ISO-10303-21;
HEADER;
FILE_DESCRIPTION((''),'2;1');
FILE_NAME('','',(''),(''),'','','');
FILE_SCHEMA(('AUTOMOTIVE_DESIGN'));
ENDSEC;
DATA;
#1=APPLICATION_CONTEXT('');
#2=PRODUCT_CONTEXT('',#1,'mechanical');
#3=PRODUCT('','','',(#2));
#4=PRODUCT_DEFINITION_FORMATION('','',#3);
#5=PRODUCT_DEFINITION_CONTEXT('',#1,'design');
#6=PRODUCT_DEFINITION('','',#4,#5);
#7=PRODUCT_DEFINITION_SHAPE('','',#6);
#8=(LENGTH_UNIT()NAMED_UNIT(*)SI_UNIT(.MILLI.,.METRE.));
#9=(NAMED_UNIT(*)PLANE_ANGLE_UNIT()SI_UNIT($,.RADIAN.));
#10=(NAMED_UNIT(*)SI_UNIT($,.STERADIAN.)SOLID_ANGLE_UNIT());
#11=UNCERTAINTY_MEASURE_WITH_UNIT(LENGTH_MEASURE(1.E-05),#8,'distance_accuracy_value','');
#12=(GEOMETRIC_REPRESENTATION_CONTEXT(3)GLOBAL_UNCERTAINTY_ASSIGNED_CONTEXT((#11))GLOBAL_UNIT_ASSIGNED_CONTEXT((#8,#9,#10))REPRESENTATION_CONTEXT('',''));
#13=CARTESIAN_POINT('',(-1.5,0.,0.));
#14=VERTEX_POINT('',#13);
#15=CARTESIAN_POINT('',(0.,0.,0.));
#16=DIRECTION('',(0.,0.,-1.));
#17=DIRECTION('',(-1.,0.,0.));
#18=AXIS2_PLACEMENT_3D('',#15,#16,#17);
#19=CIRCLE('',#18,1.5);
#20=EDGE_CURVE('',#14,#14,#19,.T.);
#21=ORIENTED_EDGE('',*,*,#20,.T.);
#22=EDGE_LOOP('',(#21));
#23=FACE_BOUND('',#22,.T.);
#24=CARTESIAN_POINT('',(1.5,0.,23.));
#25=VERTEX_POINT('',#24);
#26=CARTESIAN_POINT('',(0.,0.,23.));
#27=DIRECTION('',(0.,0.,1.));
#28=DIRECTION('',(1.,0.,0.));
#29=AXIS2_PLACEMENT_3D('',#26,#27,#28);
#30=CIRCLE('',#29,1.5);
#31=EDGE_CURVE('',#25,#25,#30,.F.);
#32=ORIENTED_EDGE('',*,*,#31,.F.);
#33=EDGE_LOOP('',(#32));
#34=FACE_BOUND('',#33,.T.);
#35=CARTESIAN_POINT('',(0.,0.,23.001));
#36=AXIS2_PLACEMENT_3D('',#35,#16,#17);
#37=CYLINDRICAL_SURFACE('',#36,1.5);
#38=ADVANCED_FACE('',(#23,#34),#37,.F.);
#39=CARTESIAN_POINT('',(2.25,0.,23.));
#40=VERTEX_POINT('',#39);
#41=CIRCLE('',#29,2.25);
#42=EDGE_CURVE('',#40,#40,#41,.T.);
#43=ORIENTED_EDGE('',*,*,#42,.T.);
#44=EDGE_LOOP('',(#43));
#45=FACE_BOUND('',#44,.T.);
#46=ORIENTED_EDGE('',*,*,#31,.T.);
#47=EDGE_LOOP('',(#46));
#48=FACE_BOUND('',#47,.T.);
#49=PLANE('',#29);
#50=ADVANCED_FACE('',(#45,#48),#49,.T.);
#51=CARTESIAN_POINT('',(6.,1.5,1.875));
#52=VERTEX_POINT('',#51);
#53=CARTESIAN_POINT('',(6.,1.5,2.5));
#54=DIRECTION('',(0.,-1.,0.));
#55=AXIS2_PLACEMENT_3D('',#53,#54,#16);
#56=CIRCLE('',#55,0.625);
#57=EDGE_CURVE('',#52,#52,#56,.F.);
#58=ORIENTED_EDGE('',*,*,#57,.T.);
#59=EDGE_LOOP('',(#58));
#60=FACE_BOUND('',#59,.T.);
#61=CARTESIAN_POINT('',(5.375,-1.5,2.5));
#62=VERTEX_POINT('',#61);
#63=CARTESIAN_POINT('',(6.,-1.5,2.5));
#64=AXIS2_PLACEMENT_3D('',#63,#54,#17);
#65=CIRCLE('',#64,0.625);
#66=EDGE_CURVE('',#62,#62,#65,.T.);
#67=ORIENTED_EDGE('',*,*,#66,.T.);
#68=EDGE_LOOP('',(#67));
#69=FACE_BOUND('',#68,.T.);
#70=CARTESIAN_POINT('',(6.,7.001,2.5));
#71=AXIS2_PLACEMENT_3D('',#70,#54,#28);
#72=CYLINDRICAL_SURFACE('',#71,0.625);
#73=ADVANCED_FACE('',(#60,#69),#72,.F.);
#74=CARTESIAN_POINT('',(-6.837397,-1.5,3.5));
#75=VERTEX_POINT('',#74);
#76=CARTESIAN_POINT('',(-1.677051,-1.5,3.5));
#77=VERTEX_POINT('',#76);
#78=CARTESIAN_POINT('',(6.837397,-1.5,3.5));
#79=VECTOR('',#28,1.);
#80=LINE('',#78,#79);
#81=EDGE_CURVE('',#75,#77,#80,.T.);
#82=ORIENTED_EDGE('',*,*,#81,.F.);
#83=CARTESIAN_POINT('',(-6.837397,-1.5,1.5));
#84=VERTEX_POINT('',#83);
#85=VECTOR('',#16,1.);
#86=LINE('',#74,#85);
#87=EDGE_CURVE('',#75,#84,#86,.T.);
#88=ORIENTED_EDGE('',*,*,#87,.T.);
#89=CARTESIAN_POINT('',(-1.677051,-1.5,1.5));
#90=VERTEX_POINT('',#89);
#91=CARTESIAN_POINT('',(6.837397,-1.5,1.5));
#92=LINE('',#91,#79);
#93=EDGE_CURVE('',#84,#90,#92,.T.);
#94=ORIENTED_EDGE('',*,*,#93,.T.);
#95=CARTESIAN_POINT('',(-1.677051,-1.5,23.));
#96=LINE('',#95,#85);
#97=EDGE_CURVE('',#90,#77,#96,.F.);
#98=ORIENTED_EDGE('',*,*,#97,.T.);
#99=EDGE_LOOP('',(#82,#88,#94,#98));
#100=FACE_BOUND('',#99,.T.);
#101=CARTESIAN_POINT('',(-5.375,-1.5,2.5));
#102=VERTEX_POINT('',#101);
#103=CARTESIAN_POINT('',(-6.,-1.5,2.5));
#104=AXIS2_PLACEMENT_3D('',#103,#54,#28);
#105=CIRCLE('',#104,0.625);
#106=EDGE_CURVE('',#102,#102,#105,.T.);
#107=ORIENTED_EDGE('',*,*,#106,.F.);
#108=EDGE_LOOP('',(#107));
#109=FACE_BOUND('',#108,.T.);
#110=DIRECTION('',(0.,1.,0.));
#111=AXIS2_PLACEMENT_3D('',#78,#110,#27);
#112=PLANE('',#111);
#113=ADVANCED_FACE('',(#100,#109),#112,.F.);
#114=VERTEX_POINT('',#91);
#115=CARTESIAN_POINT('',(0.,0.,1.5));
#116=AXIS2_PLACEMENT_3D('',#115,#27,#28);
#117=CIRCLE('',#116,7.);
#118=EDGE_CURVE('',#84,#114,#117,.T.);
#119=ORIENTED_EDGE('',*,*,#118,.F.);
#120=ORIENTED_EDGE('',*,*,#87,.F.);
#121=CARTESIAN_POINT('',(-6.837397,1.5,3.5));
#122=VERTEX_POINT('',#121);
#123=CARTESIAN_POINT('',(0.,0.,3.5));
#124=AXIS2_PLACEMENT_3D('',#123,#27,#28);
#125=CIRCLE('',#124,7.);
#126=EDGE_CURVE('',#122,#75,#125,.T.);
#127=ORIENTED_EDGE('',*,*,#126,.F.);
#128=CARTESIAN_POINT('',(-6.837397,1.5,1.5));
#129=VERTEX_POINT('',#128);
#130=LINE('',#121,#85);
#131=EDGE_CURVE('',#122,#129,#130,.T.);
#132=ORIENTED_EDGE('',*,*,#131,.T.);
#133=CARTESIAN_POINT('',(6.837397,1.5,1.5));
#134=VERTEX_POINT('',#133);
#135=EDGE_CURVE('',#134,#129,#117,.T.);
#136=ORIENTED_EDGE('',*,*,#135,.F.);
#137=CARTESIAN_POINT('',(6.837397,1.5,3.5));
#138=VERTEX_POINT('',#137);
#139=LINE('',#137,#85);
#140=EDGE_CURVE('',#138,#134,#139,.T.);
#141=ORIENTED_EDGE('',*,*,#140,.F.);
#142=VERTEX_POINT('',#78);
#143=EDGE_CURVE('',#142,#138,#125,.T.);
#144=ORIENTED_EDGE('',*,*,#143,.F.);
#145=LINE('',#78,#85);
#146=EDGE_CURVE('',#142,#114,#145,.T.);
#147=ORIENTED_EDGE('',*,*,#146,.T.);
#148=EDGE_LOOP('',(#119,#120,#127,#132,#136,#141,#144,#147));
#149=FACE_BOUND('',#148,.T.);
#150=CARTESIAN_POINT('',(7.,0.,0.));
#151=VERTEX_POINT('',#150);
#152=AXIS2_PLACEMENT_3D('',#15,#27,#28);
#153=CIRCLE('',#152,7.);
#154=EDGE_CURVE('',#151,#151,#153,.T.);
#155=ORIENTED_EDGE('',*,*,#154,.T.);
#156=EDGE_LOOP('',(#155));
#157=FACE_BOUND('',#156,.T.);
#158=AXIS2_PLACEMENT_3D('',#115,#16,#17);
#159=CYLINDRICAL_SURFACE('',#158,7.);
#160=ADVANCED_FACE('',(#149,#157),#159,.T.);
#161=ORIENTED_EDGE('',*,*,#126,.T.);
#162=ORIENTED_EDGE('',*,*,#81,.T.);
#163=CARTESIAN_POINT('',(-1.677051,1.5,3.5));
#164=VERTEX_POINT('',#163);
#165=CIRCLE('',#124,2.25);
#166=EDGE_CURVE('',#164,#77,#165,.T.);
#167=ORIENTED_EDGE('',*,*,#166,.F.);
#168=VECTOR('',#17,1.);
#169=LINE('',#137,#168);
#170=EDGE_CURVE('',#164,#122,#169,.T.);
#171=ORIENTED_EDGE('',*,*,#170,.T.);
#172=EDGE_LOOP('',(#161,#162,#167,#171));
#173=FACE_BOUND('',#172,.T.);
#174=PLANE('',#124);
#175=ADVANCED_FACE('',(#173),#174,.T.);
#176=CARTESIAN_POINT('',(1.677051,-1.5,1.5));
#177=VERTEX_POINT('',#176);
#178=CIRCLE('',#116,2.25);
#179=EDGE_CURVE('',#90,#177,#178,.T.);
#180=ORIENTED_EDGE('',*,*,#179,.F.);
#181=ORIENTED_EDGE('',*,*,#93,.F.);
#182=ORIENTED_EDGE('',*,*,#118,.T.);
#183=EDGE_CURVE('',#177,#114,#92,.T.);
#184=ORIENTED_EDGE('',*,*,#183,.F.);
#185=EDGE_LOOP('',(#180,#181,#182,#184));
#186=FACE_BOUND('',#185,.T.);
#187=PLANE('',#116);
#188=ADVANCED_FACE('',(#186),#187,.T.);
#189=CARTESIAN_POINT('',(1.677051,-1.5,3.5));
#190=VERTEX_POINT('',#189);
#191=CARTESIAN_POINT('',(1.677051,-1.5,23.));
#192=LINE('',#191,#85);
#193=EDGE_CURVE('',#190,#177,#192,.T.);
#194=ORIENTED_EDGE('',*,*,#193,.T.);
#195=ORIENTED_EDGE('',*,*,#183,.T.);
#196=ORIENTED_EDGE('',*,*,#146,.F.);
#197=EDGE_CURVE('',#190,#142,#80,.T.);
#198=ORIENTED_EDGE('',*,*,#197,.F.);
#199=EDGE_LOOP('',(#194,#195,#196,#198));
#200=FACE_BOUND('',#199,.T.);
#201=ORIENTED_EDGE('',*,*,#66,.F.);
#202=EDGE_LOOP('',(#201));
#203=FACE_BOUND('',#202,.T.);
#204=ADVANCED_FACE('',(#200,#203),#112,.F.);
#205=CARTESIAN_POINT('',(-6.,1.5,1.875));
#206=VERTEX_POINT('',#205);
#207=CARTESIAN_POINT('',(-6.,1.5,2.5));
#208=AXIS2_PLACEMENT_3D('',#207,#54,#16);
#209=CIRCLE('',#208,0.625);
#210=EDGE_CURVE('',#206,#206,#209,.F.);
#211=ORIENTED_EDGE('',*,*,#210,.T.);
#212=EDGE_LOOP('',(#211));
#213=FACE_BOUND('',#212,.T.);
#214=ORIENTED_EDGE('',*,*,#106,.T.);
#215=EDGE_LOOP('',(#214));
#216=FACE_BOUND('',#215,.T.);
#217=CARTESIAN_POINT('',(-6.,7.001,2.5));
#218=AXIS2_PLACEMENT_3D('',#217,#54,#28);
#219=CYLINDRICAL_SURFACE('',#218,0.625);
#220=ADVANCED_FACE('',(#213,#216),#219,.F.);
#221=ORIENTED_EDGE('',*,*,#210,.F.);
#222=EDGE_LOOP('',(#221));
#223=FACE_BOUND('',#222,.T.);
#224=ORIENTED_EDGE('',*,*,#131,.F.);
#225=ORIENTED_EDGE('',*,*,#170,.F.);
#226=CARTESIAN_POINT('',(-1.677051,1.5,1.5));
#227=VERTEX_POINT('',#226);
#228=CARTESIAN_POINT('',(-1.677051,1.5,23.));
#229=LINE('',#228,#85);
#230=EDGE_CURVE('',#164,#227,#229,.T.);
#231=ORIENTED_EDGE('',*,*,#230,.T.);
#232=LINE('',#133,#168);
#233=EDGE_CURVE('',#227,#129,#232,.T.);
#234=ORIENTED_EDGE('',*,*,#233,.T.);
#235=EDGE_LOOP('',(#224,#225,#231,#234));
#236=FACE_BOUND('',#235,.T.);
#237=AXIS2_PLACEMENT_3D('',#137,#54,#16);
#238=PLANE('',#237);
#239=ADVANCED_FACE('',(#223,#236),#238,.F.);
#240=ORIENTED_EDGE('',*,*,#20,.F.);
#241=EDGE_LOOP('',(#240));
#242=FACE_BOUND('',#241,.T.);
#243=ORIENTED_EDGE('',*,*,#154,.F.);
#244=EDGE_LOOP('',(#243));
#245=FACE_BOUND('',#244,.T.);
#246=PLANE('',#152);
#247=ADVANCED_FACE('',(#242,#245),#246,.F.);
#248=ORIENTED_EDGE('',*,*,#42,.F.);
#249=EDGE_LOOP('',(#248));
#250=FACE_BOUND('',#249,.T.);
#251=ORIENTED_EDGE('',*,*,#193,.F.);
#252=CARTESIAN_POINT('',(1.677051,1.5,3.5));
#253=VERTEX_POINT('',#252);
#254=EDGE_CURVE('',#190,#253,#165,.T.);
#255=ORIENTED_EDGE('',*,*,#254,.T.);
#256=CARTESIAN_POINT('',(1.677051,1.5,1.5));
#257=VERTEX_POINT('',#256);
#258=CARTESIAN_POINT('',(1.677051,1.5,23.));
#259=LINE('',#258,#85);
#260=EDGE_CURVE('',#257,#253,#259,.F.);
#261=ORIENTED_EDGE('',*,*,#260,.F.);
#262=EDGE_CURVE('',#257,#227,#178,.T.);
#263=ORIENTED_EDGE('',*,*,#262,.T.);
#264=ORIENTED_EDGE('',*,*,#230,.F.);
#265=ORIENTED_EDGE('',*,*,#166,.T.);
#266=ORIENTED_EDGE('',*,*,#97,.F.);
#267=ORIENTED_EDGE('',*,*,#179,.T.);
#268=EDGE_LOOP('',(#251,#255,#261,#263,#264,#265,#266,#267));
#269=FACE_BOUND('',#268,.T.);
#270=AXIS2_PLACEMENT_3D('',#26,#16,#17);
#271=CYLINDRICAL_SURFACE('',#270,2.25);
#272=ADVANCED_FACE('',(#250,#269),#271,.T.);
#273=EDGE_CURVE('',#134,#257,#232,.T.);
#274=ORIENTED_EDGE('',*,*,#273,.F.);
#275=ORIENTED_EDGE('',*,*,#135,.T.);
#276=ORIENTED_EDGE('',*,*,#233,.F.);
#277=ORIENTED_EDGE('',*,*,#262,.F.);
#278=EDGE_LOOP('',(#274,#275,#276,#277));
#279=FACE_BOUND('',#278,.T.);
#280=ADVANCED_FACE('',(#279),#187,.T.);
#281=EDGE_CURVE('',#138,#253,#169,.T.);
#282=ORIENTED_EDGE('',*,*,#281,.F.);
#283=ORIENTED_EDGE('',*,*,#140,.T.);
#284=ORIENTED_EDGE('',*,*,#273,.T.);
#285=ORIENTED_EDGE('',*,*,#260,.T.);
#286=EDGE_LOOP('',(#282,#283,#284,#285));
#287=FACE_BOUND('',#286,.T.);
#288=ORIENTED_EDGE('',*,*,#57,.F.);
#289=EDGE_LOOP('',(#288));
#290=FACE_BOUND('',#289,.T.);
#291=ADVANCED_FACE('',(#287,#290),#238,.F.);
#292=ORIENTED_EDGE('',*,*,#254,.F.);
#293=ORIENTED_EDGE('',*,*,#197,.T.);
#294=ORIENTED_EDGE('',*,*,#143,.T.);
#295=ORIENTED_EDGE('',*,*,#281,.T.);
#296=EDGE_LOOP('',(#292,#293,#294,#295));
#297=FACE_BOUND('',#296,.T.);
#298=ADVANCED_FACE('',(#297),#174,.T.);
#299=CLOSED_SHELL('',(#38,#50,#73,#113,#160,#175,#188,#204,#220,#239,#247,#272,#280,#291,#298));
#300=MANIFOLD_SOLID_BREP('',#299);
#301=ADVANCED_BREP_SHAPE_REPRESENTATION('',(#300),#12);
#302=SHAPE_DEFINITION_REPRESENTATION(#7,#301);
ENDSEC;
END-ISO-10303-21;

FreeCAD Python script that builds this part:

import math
import FreeCAD as App
import Part
import Sketcher
from FreeCAD import Vector
Q = App.Units.Quantity

doc = App.newDocument("Part")
body = doc.addObject("PartDesign::Body", "Body")

# Sketch on XY plane
sketch1 = doc.addObject("Sketcher::SketchObject", "Sketch")
body.addObject(sketch1)
sketch1.AttachmentSupport = (doc.XY_Plane, [""])
sketch1.MapMode = "FlatFace"
sketch1.addGeometry(Part.Circle(Vector(0, 0, 0), Vector(0, 0, 1), 7), False)
sketch1.addConstraint([
    Sketcher.Constraint("Coincident", 0, 3, -1, 1),
    Sketcher.Constraint("Diameter", 0, Q("14 mm")),
])
pad1 = doc.addObject("PartDesign::Pad", "Pad")
body.addObject(pad1)
pad1.Profile = sketch1
pad1.Length = 1.5

# Sketch on XY plane
sketch2 = doc.addObject("Sketcher::SketchObject", "Sketch001")
body.addObject(sketch2)
sketch2.AttachmentSupport = (doc.XY_Plane, [""])
sketch2.MapMode = "FlatFace"
sketch2.AttachmentOffset = App.Placement(Vector(0, 0, 1.5), App.Rotation())
sketch2.addGeometry(Part.Circle(Vector(0, 0, 0), Vector(0, 0, 1), 2.2), False)
sketch2.addConstraint([
    Sketcher.Constraint("Coincident", 0, 3, -1, 1),
    Sketcher.Constraint("Diameter", 0, Q("4.5 mm")),
])
pad2 = doc.addObject("PartDesign::Pad", "Pad001")
body.addObject(pad2)
pad2.Profile = sketch2
pad2.Length = 21.5

# Sketch on XY plane
sketch3 = doc.addObject("Sketcher::SketchObject", "Sketch002")
body.addObject(sketch3)
sketch3.AttachmentSupport = (doc.XY_Plane, [""])
sketch3.MapMode = "FlatFace"
sketch3.addGeometry(Part.Circle(Vector(0, 0, 0), Vector(0, 0, 1), 1.5), False)
sketch3.addConstraint([
    Sketcher.Constraint("Coincident", 0, 3, -1, 1),
    Sketcher.Constraint("Diameter", 0, Q("3 mm")),
])
pocket1 = doc.addObject("PartDesign::Pocket", "Pocket")
body.addObject(pocket1)
pocket1.Profile = sketch3
pocket1.Type = "UpToFirst"
pocket1.Reversed = True

# Sketch on XY plane
sketch4 = doc.addObject("Sketcher::SketchObject", "Sketch003")
body.addObject(sketch4)
sketch4.AttachmentSupport = (doc.XY_Plane, [""])
sketch4.MapMode = "FlatFace"
sketch4.AttachmentOffset = App.Placement(Vector(0, 0, 1.5), App.Rotation())
sketch4.addGeometry([
    Part.LineSegment(Vector(-6.8, -1.5, 0), Vector(6.8, -1.5, 0)),
    Part.ArcOfCircle(Part.Circle(Vector(0, 0, 0), Vector(0, 0, 1), 7), math.radians(-12), math.radians(12)),
    Part.LineSegment(Vector(6.8, 1.5, 0), Vector(-6.8, 1.5, 0)),
    Part.ArcOfCircle(Part.Circle(Vector(0, 0, 0), Vector(0, 0, 1), 7), math.radians(168), math.radians(192)),
], False)
sketch4.addConstraint([
    Sketcher.Constraint("Coincident", 0, 2, 1, 1),
    Sketcher.Constraint("Coincident", 1, 2, 2, 1),
    Sketcher.Constraint("Coincident", 2, 2, 3, 1),
    Sketcher.Constraint("Coincident", 3, 2, 0, 1),
    Sketcher.Constraint("Horizontal", 0),
    Sketcher.Constraint("Horizontal", 2),
    Sketcher.Constraint("Coincident", 1, 3, -1, 1),
    Sketcher.Constraint("Coincident", 3, 3, -1, 1),
    Sketcher.Constraint("Equal", 1, 3),
    Sketcher.Constraint("Vertical", 0, 2, 1, 2),
    Sketcher.Constraint("DistanceY", 0, 2, 1, 2, Q("3 mm")),
    Sketcher.Constraint("Radius", 1, Q("6.999993 mm")),
])
pad3 = doc.addObject("PartDesign::Pad", "Pad002")
body.addObject(pad3)
pad3.Profile = sketch4
pad3.Length = 2

# Sketch on XZ plane
sketch5 = doc.addObject("Sketcher::SketchObject", "Sketch004")
body.addObject(sketch5)
sketch5.AttachmentSupport = (doc.XZ_Plane, [""])
sketch5.MapMode = "FlatFace"
sketch5.AttachmentOffset = App.Placement(Vector(0, 0, 1.5), App.Rotation())
sketch5.addGeometry(Part.Circle(Vector(-6, 2.5, 0), Vector(0, 0, 1), 0.6), False)
sketch5.addConstraint([
    Sketcher.Constraint("Diameter", 0, Q("1.25 mm")),
    Sketcher.Constraint("DistanceX", 0, 3, -1, 1, Q("6 mm")),
    Sketcher.Constraint("DistanceY", -1, 1, 0, 3, Q("2.5 mm")),
])
pocket2 = doc.addObject("PartDesign::Pocket", "Pocket001")
body.addObject(pocket2)
pocket2.Profile = sketch5
pocket2.Type = "UpToFirst"

# Sketch on XZ plane
sketch6 = doc.addObject("Sketcher::SketchObject", "Sketch005")
body.addObject(sketch6)
sketch6.AttachmentSupport = (doc.XZ_Plane, [""])
sketch6.MapMode = "FlatFace"
sketch6.AttachmentOffset = App.Placement(Vector(0, 0, 1.5), App.Rotation())
sketch6.addGeometry(Part.Circle(Vector(6, 2.5, 0), Vector(0, 0, 1), 0.6), False)
sketch6.addConstraint([
    Sketcher.Constraint("Diameter", 0, Q("1.25 mm")),
    Sketcher.Constraint("DistanceX", -1, 1, 0, 3, Q("6 mm")),
    Sketcher.Constraint("DistanceY", -1, 1, 0, 3, Q("2.5 mm")),
])
pocket3 = doc.addObject("PartDesign::Pocket", "Pocket002")
body.addObject(pocket3)
pocket3.Profile = sketch6
pocket3.Type = "UpToFirst"

# Sketch on XY plane
sketch7 = doc.addObject("Sketcher::SketchObject", "Sketch006")
body.addObject(sketch7)
sketch7.AttachmentSupport = (doc.XY_Plane, [""])
sketch7.MapMode = "FlatFace"
sketch7.AttachmentOffset = App.Placement(Vector(0, 0, 1.5), App.Rotation())
sketch7.addGeometry(Part.Circle(Vector(0, 0, 0), Vector(0, 0, 1), 1.5), False)
sketch7.addConstraint([
    Sketcher.Constraint("Coincident", 0, 3, -1, 1),
    Sketcher.Constraint("Diameter", 0, Q("3 mm")),
])
pocket4 = doc.addObject("PartDesign::Pocket", "Pocket003")
body.addObject(pocket4)
pocket4.Profile = sketch7
pocket4.Type = "UpToFirst"
pocket4.Reversed = True

doc.recompute()
